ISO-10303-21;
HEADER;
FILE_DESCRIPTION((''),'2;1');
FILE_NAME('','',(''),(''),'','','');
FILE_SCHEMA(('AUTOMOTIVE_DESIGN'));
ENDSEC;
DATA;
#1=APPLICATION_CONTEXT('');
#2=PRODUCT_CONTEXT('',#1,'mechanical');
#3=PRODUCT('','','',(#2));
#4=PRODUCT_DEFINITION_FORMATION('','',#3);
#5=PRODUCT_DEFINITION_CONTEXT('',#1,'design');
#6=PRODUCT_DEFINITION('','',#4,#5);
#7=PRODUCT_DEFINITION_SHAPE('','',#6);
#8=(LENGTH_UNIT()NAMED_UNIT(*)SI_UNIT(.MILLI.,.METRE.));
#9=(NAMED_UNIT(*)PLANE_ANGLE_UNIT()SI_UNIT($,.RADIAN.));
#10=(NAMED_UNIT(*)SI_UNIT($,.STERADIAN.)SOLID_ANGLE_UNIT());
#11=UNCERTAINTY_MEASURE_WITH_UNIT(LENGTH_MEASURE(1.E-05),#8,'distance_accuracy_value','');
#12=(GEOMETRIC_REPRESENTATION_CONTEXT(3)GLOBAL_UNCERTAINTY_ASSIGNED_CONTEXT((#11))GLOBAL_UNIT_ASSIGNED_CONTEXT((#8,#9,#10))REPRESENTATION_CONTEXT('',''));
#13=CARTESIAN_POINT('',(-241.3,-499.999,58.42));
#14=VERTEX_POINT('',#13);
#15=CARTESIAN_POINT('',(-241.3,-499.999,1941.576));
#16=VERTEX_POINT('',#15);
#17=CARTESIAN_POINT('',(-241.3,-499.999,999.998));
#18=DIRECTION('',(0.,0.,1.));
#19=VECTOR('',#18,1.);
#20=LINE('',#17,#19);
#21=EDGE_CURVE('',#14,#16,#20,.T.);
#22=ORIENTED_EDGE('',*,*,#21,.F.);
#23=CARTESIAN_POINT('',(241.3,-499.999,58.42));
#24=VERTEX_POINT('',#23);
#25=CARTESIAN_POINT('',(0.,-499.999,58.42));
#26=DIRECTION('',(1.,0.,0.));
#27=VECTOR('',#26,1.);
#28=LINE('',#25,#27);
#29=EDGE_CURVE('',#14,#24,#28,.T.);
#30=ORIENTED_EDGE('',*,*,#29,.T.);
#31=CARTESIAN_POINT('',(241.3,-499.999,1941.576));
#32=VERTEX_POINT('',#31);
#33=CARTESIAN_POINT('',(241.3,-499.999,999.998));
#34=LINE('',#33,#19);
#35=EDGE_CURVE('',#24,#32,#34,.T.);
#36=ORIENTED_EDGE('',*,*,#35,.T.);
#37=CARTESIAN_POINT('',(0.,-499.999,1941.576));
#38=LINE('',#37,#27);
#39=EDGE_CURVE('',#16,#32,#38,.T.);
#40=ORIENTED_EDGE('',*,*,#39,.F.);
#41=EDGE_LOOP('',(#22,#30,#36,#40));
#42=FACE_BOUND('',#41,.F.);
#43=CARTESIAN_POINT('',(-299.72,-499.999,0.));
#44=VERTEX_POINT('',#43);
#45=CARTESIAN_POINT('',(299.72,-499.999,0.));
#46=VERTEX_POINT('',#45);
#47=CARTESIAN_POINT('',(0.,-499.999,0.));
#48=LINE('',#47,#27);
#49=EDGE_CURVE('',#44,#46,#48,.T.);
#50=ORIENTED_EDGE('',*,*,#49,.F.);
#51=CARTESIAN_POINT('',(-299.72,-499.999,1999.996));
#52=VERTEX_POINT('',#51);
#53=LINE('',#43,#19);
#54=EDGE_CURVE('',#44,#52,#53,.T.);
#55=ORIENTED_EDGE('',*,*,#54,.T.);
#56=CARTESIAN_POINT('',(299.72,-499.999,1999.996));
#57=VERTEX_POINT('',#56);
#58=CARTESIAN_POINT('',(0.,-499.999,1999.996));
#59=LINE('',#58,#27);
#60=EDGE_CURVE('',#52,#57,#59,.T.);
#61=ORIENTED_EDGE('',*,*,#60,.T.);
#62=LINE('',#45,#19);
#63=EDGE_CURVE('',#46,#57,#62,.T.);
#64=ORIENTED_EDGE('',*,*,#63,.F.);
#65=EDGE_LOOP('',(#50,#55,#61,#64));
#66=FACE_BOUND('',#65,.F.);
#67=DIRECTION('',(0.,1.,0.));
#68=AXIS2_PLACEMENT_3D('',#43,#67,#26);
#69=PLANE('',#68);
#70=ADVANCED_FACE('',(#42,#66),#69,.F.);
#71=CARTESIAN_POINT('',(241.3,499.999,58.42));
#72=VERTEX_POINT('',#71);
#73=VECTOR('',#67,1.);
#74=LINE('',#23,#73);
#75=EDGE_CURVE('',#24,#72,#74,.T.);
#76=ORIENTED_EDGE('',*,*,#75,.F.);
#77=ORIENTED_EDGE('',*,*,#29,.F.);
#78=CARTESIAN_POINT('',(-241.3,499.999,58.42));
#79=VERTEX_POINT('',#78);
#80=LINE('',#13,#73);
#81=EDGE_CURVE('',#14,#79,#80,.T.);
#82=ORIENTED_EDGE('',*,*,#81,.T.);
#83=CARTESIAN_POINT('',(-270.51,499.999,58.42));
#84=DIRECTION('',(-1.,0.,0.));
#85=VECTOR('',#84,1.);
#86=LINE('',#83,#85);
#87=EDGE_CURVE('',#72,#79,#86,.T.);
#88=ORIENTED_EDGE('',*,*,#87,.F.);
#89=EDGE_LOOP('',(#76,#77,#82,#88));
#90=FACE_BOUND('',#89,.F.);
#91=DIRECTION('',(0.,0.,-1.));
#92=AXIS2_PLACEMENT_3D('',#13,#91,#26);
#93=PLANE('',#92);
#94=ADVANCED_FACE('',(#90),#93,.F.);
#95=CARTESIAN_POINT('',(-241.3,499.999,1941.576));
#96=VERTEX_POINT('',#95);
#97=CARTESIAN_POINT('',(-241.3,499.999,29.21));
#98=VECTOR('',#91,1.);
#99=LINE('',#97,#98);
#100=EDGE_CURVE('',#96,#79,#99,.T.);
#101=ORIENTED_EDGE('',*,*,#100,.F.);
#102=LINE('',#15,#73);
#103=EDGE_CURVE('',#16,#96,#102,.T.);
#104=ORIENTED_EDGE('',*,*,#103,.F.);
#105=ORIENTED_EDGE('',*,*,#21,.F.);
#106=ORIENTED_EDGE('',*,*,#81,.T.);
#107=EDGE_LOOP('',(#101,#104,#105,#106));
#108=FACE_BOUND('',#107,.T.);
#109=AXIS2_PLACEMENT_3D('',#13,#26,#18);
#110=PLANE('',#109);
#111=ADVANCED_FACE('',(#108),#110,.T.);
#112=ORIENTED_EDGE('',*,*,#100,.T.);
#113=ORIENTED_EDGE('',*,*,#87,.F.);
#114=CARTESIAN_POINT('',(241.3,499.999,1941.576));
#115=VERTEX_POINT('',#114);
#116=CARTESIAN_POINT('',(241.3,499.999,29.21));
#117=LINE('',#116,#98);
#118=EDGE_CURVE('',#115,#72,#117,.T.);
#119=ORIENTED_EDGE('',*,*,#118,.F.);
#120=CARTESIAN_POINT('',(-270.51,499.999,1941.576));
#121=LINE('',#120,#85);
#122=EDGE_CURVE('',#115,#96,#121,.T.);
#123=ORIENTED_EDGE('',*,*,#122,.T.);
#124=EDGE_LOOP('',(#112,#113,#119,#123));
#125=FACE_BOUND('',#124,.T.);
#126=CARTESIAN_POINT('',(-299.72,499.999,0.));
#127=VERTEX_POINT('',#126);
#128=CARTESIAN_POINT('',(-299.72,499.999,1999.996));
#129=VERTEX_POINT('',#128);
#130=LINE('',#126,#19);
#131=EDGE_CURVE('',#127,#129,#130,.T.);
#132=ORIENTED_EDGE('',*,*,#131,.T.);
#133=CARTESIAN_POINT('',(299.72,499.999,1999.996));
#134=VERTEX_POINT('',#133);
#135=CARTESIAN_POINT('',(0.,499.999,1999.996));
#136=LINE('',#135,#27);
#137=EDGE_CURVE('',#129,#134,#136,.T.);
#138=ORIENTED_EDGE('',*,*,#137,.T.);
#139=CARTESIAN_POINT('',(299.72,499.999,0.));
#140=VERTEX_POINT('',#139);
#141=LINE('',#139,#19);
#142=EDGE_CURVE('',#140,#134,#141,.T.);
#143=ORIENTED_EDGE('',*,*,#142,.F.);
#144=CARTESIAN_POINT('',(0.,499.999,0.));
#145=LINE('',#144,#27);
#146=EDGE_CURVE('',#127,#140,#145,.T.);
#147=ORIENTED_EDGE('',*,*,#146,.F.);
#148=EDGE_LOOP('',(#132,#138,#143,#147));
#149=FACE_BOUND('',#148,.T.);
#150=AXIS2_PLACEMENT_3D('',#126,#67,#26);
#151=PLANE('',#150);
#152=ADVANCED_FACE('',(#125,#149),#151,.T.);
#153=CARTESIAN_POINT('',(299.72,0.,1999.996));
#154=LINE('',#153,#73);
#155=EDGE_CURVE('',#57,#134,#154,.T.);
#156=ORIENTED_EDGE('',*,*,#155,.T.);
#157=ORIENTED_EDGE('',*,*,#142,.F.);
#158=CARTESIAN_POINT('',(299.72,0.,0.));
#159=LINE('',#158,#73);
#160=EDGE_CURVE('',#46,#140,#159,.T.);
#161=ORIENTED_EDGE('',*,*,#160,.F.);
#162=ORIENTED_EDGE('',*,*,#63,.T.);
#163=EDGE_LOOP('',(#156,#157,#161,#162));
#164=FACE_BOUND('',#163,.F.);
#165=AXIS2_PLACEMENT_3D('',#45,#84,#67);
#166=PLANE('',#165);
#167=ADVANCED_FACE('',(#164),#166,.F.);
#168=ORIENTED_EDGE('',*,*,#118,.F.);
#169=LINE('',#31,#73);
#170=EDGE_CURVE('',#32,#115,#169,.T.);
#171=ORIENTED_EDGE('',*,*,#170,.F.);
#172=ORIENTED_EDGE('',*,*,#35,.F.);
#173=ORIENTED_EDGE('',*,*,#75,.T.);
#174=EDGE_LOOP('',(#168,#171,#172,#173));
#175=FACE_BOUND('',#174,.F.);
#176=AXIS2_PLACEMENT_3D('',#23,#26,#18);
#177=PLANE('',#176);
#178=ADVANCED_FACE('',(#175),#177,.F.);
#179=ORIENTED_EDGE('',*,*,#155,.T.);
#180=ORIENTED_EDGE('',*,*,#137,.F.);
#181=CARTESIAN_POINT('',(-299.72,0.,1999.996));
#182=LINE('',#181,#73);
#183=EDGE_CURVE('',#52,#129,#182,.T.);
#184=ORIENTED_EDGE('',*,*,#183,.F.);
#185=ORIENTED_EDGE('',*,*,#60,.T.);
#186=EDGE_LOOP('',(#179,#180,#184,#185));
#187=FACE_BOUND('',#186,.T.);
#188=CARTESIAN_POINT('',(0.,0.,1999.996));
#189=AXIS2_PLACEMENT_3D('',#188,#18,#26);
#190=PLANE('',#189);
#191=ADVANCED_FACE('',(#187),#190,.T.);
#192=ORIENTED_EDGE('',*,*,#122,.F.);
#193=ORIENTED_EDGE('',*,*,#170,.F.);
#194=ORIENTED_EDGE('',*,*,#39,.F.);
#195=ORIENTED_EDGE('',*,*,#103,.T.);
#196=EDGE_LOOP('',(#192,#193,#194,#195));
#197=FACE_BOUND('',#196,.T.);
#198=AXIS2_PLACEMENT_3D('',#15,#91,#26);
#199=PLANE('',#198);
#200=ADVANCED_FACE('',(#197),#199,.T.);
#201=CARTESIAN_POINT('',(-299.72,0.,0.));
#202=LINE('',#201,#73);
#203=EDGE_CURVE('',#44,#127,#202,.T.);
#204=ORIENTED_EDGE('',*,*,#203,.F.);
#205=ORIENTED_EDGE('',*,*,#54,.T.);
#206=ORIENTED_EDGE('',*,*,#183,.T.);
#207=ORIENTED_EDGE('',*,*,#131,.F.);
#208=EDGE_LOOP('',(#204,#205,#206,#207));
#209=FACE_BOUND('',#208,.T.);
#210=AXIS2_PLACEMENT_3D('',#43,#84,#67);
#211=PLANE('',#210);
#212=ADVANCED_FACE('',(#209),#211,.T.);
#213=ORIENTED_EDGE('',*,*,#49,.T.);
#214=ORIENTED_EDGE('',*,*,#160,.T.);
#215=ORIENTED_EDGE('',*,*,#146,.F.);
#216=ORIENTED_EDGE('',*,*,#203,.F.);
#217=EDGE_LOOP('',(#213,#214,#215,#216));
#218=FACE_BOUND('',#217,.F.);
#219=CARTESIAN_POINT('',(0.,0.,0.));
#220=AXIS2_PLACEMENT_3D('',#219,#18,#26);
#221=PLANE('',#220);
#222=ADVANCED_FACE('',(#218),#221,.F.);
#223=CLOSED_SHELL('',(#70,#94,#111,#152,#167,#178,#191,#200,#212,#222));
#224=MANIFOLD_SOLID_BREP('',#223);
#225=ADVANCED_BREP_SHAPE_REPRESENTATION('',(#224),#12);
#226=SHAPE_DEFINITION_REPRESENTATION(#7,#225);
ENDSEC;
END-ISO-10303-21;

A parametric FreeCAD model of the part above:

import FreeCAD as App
import Part
import Sketcher
from FreeCAD import Vector
Q = App.Units.Quantity

doc = App.newDocument("Part")
params = doc.addObject("Spreadsheet::Sheet", "Params")
for row, (alias, value) in enumerate([
    ("sketch1_width", "23.6 in"),
    ("sketch1_height", "39.37 in"),
    ("pad1_length", "78.74 in"),
    ("sketch2_width", "19 in"),
    ("sketch2_height", "74.14 in"),
], start=1):
    params.set(f"A{row}", alias)
    params.set(f"B{row}", "=" + value)
    params.setAlias(f"B{row}", alias)

body = doc.addObject("PartDesign::Body", "Body")

# Sketch on XY plane
sketch1 = doc.addObject("Sketcher::SketchObject", "Sketch")
body.addObject(sketch1)
sketch1.AttachmentSupport = (doc.XY_Plane, [""])
sketch1.MapMode = "FlatFace"
sketch1.addGeometry(Part.LineSegment(Vector(-300, 500, 0), Vector(-300, -500, 0)), False)
sketch1.addGeometry(Part.LineSegment(Vector(-300, -500, 0), Vector(300, -500, 0)), False)
sketch1.addGeometry(Part.LineSegment(Vector(300, -500, 0), Vector(300, 500, 0)), False)
sketch1.addGeometry(Part.LineSegment(Vector(300, 500, 0), Vector(-300, 500, 0)), False)
sketch1.addConstraint(Sketcher.Constraint("Coincident", 0, 2, 1, 1))
sketch1.addConstraint(Sketcher.Constraint("Coincident", 1, 2, 2, 1))
sketch1.addConstraint(Sketcher.Constraint("Coincident", 2, 2, 3, 1))
sketch1.addConstraint(Sketcher.Constraint("Coincident", 3, 2, 0, 1))
sketch1.addConstraint(Sketcher.Constraint("Vertical", 0))
sketch1.addConstraint(Sketcher.Constraint("Horizontal", 1))
sketch1.addConstraint(Sketcher.Constraint("Vertical", 2))
sketch1.addConstraint(Sketcher.Constraint("Horizontal", 3))
sketch1.addConstraint(Sketcher.Constraint("Symmetric", 0, 2, 2, 2, -1, 1))
sketch1.addConstraint(Sketcher.Constraint("DistanceX", 1, 1, 1, 2, Q("23.6 in")))
sketch1.addConstraint(Sketcher.Constraint("DistanceY", 0, 2, 0, 1, Q("39.37 in")))
sketch1.setExpression("Constraints[9]", "Params.sketch1_width")
sketch1.setExpression("Constraints[10]", "Params.sketch1_height")
pad1 = doc.addObject("PartDesign::Pad", "Pad")
body.addObject(pad1)
pad1.Profile = sketch1
pad1.setExpression("Length", "Params.pad1_length")

# Sketch on XZ plane
sketch2 = doc.addObject("Sketcher::SketchObject", "Sketch001")
body.addObject(sketch2)
sketch2.AttachmentSupport = (doc.XZ_Plane, [""])
sketch2.MapMode = "FlatFace"
sketch2.AttachmentOffset = App.Placement(Vector(0, 0, 19.685 * 25.4), App.Rotation())
sketch2.addGeometry(Part.LineSegment(Vector(-241, 1942, 0), Vector(-241, 58, 0)), False)
sketch2.addGeometry(Part.LineSegment(Vector(-241, 58, 0), Vector(241, 58, 0)), False)
sketch2.addGeometry(Part.LineSegment(Vector(241, 58, 0), Vector(241, 1942, 0)), False)
sketch2.addGeometry(Part.LineSegment(Vector(241, 1942, 0), Vector(-241, 1942, 0)), False)
sketch2.addConstraint(Sketcher.Constraint("Coincident", 0, 2, 1, 1))
sketch2.addConstraint(Sketcher.Constraint("Coincident", 1, 2, 2, 1))
sketch2.addConstraint(Sketcher.Constraint("Coincident", 2, 2, 3, 1))
sketch2.addConstraint(Sketcher.Constraint("Coincident", 3, 2, 0, 1))
sketch2.addConstraint(Sketcher.Constraint("Vertical", 0))
sketch2.addConstraint(Sketcher.Constraint("Horizontal", 1))
sketch2.addConstraint(Sketcher.Constraint("Vertical", 2))
sketch2.addConstraint(Sketcher.Constraint("Horizontal", 3))
sketch2.addConstraint(Sketcher.Constraint("DistanceX", 1, 1, 1, 2, Q("19 in")))
sketch2.addConstraint(Sketcher.Constraint("DistanceY", 0, 2, 0, 1, Q("74.14 in")))
sketch2.addConstraint(Sketcher.Constraint("DistanceX", 0, 2, -1, 1, Q("9.5 in")))
sketch2.addConstraint(Sketcher.Constraint("DistanceY", -1, 1, 0, 2, Q("2.3 in")))
sketch2.setExpression("Constraints[8]", "Params.sketch2_width")
sketch2.setExpression("Constraints[9]", "Params.sketch2_height")
pocket1 = doc.addObject("PartDesign::Pocket", "Pocket")
body.addObject(pocket1)
pocket1.Profile = sketch2
pocket1.Type = "ThroughAll"

doc.recompute()
